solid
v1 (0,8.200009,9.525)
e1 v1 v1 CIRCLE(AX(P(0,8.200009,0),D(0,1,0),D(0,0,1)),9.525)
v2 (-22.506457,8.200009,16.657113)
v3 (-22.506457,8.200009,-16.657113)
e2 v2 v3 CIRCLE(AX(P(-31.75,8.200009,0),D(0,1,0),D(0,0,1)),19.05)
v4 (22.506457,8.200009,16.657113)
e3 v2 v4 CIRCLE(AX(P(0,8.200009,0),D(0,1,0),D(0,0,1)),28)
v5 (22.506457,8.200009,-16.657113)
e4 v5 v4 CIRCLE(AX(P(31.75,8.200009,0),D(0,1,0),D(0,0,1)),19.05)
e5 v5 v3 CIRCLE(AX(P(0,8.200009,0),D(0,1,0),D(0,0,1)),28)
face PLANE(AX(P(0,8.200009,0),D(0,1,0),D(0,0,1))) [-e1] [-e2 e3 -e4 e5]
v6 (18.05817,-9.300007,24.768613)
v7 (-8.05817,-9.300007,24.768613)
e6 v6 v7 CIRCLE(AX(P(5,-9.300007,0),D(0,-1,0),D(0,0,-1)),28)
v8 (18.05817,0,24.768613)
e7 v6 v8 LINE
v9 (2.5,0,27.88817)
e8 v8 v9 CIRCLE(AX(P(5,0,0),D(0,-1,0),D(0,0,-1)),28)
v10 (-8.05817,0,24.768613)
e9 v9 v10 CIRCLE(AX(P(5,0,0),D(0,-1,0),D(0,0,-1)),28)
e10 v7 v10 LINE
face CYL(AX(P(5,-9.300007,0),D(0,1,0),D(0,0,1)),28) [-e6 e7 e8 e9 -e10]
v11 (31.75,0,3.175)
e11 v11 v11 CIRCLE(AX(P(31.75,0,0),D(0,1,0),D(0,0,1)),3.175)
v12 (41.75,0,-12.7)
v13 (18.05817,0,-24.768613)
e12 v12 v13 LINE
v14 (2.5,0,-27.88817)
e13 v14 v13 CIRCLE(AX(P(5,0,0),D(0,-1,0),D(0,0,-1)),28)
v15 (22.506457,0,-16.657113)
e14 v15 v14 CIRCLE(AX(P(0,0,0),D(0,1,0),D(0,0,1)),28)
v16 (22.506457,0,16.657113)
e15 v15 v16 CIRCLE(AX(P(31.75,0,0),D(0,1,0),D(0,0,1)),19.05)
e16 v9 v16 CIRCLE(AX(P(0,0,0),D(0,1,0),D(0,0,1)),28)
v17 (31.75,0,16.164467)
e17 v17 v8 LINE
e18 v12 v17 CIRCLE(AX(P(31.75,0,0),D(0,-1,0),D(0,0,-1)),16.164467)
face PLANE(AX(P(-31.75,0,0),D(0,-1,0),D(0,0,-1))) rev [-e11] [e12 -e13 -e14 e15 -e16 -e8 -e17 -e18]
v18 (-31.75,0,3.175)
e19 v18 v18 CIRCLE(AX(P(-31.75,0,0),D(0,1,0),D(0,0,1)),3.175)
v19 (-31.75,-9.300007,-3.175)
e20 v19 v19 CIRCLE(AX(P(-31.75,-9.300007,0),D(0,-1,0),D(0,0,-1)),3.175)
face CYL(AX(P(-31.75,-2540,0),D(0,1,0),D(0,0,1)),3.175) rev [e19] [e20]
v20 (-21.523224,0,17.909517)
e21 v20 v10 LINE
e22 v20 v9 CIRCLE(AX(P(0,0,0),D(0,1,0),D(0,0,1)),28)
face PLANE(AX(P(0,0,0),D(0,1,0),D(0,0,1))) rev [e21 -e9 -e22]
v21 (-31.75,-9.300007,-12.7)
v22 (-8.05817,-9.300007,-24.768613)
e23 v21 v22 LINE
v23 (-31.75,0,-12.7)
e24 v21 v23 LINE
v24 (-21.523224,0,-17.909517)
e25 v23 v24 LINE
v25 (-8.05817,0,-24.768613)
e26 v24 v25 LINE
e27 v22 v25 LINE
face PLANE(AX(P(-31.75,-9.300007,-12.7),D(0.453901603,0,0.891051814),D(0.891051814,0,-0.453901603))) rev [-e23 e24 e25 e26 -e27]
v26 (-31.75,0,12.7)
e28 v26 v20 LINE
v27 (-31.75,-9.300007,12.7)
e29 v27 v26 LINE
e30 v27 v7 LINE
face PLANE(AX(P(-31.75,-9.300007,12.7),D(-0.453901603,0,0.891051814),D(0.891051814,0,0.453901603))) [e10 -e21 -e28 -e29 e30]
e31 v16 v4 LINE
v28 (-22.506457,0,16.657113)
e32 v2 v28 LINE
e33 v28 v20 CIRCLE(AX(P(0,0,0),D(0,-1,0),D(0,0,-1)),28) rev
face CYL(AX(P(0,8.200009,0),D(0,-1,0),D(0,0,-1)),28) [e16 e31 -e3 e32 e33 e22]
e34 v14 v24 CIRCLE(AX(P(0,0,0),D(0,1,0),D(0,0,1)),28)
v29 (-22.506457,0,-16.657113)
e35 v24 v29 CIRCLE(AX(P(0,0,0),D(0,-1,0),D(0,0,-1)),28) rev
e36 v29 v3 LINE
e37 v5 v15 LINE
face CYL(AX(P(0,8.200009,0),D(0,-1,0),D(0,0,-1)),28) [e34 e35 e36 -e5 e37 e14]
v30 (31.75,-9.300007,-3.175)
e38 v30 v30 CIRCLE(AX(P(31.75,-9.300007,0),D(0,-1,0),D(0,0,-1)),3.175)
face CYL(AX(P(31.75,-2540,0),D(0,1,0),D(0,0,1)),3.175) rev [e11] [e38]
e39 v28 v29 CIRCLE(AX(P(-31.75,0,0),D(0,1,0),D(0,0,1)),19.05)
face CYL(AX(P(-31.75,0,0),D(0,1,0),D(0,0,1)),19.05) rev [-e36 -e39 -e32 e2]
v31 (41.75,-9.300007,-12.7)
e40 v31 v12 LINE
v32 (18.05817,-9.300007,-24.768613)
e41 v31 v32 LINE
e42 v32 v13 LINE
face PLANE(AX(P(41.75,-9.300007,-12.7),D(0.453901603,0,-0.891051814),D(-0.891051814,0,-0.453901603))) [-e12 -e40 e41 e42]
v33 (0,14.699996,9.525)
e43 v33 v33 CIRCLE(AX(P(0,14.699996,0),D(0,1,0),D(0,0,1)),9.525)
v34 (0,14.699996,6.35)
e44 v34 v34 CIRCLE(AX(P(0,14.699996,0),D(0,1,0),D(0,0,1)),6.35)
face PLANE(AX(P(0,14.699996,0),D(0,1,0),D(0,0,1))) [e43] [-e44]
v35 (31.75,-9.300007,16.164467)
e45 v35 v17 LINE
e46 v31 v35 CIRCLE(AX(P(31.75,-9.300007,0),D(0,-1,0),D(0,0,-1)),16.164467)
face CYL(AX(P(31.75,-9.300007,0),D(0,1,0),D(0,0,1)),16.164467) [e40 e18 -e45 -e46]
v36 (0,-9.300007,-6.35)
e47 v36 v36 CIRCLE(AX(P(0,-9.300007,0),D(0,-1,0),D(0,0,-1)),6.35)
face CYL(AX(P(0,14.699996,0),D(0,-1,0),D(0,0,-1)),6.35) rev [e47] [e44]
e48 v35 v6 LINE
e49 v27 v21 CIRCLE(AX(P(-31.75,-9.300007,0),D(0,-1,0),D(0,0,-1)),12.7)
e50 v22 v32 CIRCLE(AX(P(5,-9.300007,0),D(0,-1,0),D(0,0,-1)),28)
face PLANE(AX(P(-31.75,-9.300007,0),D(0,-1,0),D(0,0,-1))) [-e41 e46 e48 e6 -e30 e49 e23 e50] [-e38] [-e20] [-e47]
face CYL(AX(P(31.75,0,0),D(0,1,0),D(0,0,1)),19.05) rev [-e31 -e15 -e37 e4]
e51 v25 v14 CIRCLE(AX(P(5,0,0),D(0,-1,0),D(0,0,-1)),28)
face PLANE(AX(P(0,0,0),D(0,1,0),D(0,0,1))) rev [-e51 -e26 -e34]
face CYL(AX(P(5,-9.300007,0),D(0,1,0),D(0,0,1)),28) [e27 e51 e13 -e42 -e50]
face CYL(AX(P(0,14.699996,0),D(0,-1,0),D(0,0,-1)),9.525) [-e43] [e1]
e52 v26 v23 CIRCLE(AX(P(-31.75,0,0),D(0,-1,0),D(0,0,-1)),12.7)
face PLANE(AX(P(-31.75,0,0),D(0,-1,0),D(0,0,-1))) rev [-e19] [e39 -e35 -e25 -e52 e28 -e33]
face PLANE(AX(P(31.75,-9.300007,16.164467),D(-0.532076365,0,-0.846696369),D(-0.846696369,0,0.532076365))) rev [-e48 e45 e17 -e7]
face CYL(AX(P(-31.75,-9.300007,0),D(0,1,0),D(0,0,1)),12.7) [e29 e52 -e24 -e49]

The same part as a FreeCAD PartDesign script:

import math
import FreeCAD as App
import Part
import Sketcher
Q = App.Units.Quantity

doc = App.newDocument("Part")
params = doc.addObject("Spreadsheet::Sheet", "Params")
for row, (alias, value) in enumerate([
    ("sketch1_diameter", "0.5 in"),
    ("sketch1_diameter2", "0.75 in"),
    ("pad1_length", "14.699996 mm"),
    ("sketch2_radius", "0.5 in"),
    ("pad2_length", "9.300007 mm"),
    ("sketch3_diameter", "0.5 in"),
    ("pocket1_length", "100 in"),
    ("sketch4_diameter", "0.25 in"),
    ("pocket2_length", "100 in"),
    ("pad3_length", "8.200009 mm"),
    ("sketch6_diameter", "1.5 in"),
    ("pocket3_length", "8.200009 mm"),
], start=1):
    params.set(f"A{row}", alias)
    params.set(f"B{row}", "=" + value)
    params.setAlias(f"B{row}", alias)

body = doc.addObject("PartDesign::Body", "Body")

# Sketch on XZ plane
sketch1 = body.newObject("Sketcher::SketchObject", "Sketch")
sketch1.AttachmentSupport = (doc.getObject("XZ_Plane"), [""])
sketch1.MapMode = "FlatFace"
sketch1.addGeometry([
    Part.Circle(App.Vector(0, 0, 0), App.Vector(0, 0, 1), 9.525),
    Part.Circle(App.Vector(0, 0, 0), App.Vector(0, 0, 1), 6.35),
], False)
sketch1.addConstraint([
    Sketcher.Constraint("Coincident", 0, 3, -1, 1),
    Sketcher.Constraint("Coincident", 1, 3, -1, 1),
    Sketcher.Constraint("Diameter", 1, Q("0.5 in")),
    Sketcher.Constraint("Diameter", 0, Q("0.75 in")),
])
sketch1.setExpression("Constraints[2]", "Params.sketch1_diameter")
sketch1.setExpression("Constraints[3]", "Params.sketch1_diameter2")
pad1 = body.newObject("PartDesign::Pad", "Pad")
pad1.Profile = sketch1
pad1.setExpression("Length", "Params.pad1_length")
pad1.Reversed = True

# Sketch on XZ plane
sketch2 = body.newObject("Sketcher::SketchObject", "Sketch001")
sketch2.AttachmentSupport = (doc.getObject("XZ_Plane"), [""])
sketch2.MapMode = "FlatFace"
sketch2.addGeometry([
    Part.LineSegment(App.Vector(-31.75, -12.7, 0), App.Vector(-8.05817, -24.768613, 0)),  # 0
    Part.ArcOfCircle(Part.Circle(App.Vector(5, 0, 0), App.Vector(0, 0, 1), 28), math.radians(-117.798483), math.radians(-62.201517)),  # 1
    Part.LineSegment(App.Vector(18.05817, -24.768613, 0), App.Vector(41.75, -12.7, 0)),  # 2
    Part.ArcOfCircle(Part.Circle(App.Vector(31.75, 0, 0), App.Vector(0, 0, 1), 16.164467), math.radians(-51.783049), math.radians(90)),  # 3
    Part.LineSegment(App.Vector(31.75, 16.164467, 0), App.Vector(18.05817, 24.768613, 0)),  # 4
    Part.ArcOfCircle(Part.Circle(App.Vector(5, 0, 0), App.Vector(0, 0, 1), 28), math.radians(62.201517), math.radians(117.798483)),  # 5
    Part.LineSegment(App.Vector(-8.05817, 24.768613, 0), App.Vector(-31.75, 12.7, 0)),  # 6
    Part.ArcOfCircle(Part.Circle(App.Vector(-31.75, 0, 0), App.Vector(0, 0, 1), 12.7), math.radians(90), math.radians(270)),  # 7
], False)
sketch2.addConstraint([
    Sketcher.Constraint("Coincident", 0, 2, 1, 1),
    Sketcher.Constraint("Coincident", 1, 2, 2, 1),
    Sketcher.Constraint("Coincident", 2, 2, 3, 1),
    Sketcher.Constraint("Coincident", 3, 2, 4, 1),
    Sketcher.Constraint("Coincident", 4, 2, 5, 1),
    Sketcher.Constraint("Coincident", 5, 2, 6, 1),
    Sketcher.Constraint("Coincident", 6, 2, 7, 1),
    Sketcher.Constraint("Coincident", 7, 2, 0, 1),
    Sketcher.Constraint("Coincident", 5, 3, 1, 3),
    Sketcher.Constraint("Equal", 1, 5),
    Sketcher.Constraint("Symmetric", 3, 3, 7, 3, -1, 1),
    Sketcher.Constraint("Symmetric", 1, 2, 4, 2, -1),
    Sketcher.Constraint("Symmetric", 6, 2, 7, 2, -1),
    Sketcher.Constraint("Parallel", 2, 6),
    Sketcher.Constraint("Horizontal", 0, 2, 1, 2),
    Sketcher.Constraint("Horizontal", 4, 2, 5, 2),
    Sketcher.Constraint("Horizontal", 2, 2, 7, 2),
    Sketcher.Constraint("Vertical", 7, 3, 6, 2),
    Sketcher.Constraint("Radius", 7, Q("0.5 in")),
    Sketcher.Constraint("DistanceX", 7, 3, 3, 3, Q("2.5 in")),
    Sketcher.Constraint("DistanceX", -1, 1, 3, 2, Q("1.25 in")),
    Sketcher.Constraint("Radius", 1, Q("28 mm")),
    Sketcher.Constraint("Radius", 3, Q("16.164467 mm")),
    Sketcher.Constraint("Distance", 0, Q("26.588611 mm")),
])
sketch2.setExpression("Constraints[18]", "Params.sketch2_radius")
pad2 = body.newObject("PartDesign::Pad", "Pad001")
pad2.Profile = sketch2
pad2.setExpression("Length", "Params.pad2_length")

# Sketch on XZ plane
sketch3 = body.newObject("Sketcher::SketchObject", "Sketch002")
sketch3.AttachmentSupport = (doc.getObject("XZ_Plane"), [""])
sketch3.MapMode = "FlatFace"
sketch3.addGeometry(Part.Circle(App.Vector(0, 0, 0), App.Vector(0, 0, 1), 6.35), False)
sketch3.addConstraint([
    Sketcher.Constraint("Coincident", 0, 3, -1, 1),
    Sketcher.Constraint("Diameter", 0, Q("0.5 in")),
])
sketch3.setExpression("Constraints[1]", "Params.sketch3_diameter")
pocket1 = body.newObject("PartDesign::Pocket", "Pocket")
pocket1.Profile = sketch3
pocket1.setExpression("Length", "Params.pocket1_length")
pocket1.Reversed = True

# Sketch on XZ plane
sketch4 = body.newObject("Sketcher::SketchObject", "Sketch003")
sketch4.AttachmentSupport = (doc.getObject("XZ_Plane"), [""])
sketch4.MapMode = "FlatFace"
sketch4.addGeometry([
    Part.Circle(App.Vector(-31.75, 0, 0), App.Vector(0, 0, 1), 3.175),
    Part.Circle(App.Vector(31.75, 0, 0), App.Vector(0, 0, 1), 3.175),
], False)
sketch4.addConstraint([
    Sketcher.Constraint("Equal", 0, 1),
    Sketcher.Constraint("Symmetric", 0, 3, 1, 3, -1, 1),
    Sketcher.Constraint("PointOnObject", 0, 3, -1),
    Sketcher.Constraint("Diameter", 0, Q("0.25 in")),
    Sketcher.Constraint("DistanceX", 0, 3, 1, 3, Q("2.5 in")),
])
sketch4.setExpression("Constraints[3]", "Params.sketch4_diameter")
pocket2 = body.newObject("PartDesign::Pocket", "Pocket001")
pocket2.Profile = sketch4
pocket2.setExpression("Length", "Params.pocket2_length")
pocket2.Reversed = True

# Sketch on XZ plane
sketch5 = body.newObject("Sketcher::SketchObject", "Sketch004")
sketch5.AttachmentSupport = (doc.getObject("XZ_Plane"), [""])
sketch5.MapMode = "FlatFace"
sketch5.addGeometry([
    Part.Circle(App.Vector(0, 0, 0), App.Vector(0, 0, 1), 28),
    Part.Circle(App.Vector(0, 0, 0), App.Vector(0, 0, 1), 7.320365),
], False)
sketch5.addConstraint([
    Sketcher.Constraint("Coincident", 0, 3, -1, 1),
    Sketcher.Constraint("Coincident", 1, 3, -1, 1),
    Sketcher.Constraint("Diameter", 0, Q("56 mm")),
    Sketcher.Constraint("Diameter", 1, Q("14.64073 mm")),
])
pad3 = body.newObject("PartDesign::Pad", "Pad002")
pad3.Profile = sketch5
pad3.setExpression("Length", "Params.pad3_length")
pad3.Reversed = True

# Sketch on XZ plane
sketch6 = body.newObject("Sketcher::SketchObject", "Sketch005")
sketch6.AttachmentSupport = (doc.getObject("XZ_Plane"), [""])
sketch6.MapMode = "FlatFace"
sketch6.AttachmentOffset = App.Placement(App.Vector(0, 0, -8.200009), App.Rotation())
sketch6.addGeometry([
    Part.Circle(App.Vector(-31.75, 0, 0), App.Vector(0, 0, 1), 19.05),
    Part.Circle(App.Vector(31.75, 0, 0), App.Vector(0, 0, 1), 19.05),
], False)
sketch6.addConstraint([
    Sketcher.Constraint("Equal", 0, 1),
    Sketcher.Constraint("Symmetric", 0, 3, 1, 3, -1, 1),
    Sketcher.Constraint("PointOnObject", 0, 3, -1),
    Sketcher.Constraint("Diameter", 0, Q("1.5 in")),
    Sketcher.Constraint("DistanceX", 0, 3, 1, 3, Q("2.5 in")),
])
sketch6.setExpression("Constraints[3]", "Params.sketch6_diameter")
pocket3 = body.newObject("PartDesign::Pocket", "Pocket002")
pocket3.Profile = sketch6
pocket3.setExpression("Length", "Params.pocket3_length")
pocket3.Reversed = True

doc.recompute()
